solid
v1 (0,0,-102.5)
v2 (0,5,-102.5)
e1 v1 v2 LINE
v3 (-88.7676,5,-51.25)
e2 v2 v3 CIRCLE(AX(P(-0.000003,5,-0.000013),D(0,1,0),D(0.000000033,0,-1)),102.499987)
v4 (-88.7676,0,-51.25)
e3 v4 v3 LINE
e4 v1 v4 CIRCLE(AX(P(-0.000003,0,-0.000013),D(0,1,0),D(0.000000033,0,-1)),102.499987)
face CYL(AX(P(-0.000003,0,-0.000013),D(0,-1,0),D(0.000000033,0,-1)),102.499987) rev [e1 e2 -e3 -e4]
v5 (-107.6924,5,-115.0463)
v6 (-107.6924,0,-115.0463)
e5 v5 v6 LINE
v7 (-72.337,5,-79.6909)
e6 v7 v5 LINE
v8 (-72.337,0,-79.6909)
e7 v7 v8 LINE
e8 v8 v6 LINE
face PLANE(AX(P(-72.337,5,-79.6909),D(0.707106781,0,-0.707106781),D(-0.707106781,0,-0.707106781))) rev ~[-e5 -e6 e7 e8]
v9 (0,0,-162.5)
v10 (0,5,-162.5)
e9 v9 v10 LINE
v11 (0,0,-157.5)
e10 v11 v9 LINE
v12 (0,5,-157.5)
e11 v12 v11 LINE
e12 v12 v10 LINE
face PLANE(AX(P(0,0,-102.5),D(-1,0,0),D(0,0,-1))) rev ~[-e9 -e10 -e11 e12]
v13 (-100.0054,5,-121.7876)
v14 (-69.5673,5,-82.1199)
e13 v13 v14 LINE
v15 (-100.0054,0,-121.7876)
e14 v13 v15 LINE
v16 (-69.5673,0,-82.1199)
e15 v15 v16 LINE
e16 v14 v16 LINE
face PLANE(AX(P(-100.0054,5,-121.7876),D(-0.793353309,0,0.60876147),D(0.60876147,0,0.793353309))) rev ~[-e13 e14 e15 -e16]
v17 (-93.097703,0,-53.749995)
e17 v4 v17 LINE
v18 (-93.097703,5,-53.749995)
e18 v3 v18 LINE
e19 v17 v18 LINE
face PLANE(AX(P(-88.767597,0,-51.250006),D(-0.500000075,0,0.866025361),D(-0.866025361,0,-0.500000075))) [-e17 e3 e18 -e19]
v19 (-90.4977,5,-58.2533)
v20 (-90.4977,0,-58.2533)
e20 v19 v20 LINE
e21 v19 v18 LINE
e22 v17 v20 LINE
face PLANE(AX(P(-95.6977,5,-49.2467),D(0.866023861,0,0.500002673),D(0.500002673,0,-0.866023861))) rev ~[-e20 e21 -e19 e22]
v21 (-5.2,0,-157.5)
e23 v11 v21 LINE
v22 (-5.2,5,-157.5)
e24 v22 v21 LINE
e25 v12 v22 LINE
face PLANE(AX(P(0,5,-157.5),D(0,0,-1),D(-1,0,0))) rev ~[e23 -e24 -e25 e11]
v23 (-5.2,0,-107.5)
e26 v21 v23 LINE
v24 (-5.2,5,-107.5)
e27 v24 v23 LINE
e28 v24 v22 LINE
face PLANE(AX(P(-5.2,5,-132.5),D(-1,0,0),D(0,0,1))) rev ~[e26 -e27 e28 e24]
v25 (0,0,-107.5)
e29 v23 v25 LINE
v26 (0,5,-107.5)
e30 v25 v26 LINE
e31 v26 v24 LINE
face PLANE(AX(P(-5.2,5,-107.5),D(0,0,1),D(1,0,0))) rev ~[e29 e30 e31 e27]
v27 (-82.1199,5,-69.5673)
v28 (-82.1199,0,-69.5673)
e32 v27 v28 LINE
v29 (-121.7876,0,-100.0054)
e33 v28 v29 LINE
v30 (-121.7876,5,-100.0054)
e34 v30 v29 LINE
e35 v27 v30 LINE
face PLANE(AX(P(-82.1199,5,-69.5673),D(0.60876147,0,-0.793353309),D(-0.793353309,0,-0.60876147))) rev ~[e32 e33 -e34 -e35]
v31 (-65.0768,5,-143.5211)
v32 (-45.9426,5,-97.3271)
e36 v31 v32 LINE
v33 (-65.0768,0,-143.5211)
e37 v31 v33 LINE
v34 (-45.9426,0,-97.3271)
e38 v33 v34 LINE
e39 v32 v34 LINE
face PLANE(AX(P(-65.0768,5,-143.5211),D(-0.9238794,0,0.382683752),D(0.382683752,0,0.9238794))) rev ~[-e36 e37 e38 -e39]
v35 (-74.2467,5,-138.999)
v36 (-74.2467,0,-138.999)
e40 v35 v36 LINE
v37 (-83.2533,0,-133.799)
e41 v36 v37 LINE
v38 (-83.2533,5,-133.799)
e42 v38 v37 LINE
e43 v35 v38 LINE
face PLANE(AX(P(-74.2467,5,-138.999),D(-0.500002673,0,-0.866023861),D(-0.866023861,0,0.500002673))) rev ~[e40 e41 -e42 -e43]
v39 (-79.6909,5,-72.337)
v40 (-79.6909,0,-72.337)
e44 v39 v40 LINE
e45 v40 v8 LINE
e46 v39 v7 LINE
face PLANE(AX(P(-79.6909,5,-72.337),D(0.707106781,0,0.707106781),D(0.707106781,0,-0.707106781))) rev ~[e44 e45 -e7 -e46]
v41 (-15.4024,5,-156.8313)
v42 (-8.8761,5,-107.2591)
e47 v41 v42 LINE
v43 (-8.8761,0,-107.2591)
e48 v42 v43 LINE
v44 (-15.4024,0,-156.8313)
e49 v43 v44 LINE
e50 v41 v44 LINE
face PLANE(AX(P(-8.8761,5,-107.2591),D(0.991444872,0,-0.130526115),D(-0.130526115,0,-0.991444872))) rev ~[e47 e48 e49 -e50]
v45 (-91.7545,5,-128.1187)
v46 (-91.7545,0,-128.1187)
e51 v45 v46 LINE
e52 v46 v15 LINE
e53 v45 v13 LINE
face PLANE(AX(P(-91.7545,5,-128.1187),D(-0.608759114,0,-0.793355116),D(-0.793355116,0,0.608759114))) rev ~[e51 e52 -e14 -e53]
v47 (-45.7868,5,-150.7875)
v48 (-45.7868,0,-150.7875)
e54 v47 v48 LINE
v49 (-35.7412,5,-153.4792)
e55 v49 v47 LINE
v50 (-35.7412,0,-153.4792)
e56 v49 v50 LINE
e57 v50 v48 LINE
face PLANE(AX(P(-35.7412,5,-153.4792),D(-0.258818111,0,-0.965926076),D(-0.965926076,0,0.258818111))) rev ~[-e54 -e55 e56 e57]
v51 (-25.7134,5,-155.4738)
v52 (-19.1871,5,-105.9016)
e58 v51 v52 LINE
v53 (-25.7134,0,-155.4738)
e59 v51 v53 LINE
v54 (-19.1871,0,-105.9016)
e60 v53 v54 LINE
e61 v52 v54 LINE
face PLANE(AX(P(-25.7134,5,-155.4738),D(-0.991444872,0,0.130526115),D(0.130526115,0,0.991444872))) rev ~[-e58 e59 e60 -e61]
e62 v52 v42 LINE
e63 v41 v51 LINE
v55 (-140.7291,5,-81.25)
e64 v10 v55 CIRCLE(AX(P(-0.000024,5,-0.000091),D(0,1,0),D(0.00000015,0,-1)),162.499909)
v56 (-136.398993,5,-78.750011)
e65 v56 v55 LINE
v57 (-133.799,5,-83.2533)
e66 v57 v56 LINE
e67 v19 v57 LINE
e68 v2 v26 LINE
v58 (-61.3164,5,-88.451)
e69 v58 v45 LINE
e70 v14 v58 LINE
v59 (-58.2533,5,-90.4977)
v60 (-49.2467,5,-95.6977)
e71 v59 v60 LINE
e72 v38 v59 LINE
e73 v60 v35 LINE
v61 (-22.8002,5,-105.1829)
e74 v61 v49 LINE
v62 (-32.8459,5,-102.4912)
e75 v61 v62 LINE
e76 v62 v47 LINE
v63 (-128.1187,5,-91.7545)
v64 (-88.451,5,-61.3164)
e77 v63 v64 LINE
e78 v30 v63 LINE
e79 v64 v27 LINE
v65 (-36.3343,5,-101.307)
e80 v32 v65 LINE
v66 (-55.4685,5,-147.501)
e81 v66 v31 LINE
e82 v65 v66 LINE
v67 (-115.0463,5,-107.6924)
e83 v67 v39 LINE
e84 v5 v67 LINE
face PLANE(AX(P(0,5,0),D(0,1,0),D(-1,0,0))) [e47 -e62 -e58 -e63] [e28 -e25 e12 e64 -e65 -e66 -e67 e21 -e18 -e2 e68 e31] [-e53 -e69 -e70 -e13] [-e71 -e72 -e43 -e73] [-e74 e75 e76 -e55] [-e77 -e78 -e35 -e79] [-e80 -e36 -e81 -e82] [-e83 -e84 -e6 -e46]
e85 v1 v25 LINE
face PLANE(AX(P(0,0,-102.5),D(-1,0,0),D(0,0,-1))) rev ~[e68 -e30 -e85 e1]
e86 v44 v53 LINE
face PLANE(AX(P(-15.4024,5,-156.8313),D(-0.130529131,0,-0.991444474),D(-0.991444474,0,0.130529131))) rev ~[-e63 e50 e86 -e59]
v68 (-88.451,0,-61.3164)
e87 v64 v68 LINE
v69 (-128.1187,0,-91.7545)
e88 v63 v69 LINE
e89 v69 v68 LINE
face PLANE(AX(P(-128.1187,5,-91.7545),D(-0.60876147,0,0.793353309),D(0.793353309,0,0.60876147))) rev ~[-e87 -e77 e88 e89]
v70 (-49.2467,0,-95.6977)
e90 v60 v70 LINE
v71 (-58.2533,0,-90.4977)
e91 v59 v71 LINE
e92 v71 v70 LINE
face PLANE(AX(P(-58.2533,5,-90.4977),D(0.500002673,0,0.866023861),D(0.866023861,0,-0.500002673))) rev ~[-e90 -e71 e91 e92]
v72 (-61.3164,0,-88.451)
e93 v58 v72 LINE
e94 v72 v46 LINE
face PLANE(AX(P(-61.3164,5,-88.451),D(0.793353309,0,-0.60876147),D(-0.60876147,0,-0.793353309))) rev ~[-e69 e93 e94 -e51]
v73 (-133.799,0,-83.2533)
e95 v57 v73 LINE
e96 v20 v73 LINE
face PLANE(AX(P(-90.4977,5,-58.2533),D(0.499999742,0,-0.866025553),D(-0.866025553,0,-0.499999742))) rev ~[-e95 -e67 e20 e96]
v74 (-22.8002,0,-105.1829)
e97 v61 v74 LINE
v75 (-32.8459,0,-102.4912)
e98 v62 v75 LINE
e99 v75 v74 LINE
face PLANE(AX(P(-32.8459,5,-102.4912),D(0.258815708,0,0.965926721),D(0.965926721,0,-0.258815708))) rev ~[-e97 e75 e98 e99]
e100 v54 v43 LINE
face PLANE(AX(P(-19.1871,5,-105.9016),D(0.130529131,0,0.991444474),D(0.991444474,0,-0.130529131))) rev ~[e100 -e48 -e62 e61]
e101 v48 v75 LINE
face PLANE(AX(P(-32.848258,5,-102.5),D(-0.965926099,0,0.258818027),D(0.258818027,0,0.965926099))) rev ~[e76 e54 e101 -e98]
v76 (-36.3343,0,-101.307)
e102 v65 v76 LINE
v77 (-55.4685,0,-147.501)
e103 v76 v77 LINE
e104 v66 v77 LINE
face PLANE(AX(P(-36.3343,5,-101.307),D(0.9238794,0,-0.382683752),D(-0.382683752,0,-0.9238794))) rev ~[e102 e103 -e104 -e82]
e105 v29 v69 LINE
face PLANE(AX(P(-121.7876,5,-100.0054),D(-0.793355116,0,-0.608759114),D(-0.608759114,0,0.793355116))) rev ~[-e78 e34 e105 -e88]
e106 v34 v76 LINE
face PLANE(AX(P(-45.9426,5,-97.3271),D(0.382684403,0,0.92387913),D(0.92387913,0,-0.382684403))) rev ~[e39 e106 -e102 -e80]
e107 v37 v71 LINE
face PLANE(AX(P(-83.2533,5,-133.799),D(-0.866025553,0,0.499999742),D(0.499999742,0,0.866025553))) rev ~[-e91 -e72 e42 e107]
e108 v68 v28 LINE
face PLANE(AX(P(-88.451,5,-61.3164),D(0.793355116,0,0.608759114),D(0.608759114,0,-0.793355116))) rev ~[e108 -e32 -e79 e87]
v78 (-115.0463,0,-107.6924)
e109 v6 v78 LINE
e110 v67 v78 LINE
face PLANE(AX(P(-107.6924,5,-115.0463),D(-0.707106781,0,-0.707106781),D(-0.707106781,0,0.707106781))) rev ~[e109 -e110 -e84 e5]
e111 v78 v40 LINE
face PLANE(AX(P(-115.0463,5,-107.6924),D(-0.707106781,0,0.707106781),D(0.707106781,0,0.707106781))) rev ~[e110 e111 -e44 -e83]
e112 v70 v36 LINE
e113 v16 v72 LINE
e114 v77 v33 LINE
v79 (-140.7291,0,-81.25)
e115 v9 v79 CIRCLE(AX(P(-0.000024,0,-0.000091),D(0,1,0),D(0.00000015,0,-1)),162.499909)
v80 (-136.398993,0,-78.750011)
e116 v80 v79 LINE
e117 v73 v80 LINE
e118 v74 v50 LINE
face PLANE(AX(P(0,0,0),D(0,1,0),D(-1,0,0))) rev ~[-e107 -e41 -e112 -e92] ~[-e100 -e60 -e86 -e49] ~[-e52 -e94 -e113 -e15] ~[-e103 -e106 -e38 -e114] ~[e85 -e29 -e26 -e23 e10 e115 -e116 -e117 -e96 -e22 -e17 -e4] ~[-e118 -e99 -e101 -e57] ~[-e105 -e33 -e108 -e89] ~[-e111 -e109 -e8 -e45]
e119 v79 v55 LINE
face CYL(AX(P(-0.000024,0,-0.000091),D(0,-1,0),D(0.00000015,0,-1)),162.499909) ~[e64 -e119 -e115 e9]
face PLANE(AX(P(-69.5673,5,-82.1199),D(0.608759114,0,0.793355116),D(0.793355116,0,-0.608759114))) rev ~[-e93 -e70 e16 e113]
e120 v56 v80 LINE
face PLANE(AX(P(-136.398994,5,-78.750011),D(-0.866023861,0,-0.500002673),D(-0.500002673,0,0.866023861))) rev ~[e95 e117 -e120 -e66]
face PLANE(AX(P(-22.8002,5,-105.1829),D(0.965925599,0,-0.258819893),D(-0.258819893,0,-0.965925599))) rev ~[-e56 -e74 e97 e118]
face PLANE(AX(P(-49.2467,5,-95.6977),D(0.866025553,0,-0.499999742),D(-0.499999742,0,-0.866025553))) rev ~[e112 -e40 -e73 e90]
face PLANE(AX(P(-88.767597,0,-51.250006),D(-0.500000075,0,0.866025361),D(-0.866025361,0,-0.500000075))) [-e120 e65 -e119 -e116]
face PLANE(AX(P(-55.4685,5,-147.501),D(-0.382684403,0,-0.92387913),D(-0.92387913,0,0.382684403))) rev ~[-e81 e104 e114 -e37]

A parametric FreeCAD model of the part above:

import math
import FreeCAD as App
import Part
import Sketcher
Q = App.Units.Quantity


def add_polygon(sketch, points):
    """Adds a closed chain of lines whose ends are joined by coincident constraints."""
    first, n = sketch.GeometryCount, len(points)
    for a, b in zip(points, points[1:] + points[:1]):
        sketch.addGeometry(Part.LineSegment(App.Vector(*a, 0), App.Vector(*b, 0)), False)
    for i in range(n):
        sketch.addConstraint(Sketcher.Constraint("Coincident", first + i, 2, first + (i + 1) % n, 1))

doc = App.newDocument("Part")
body = doc.addObject("PartDesign::Body", "Body")

sketch1 = body.newObject("Sketcher::SketchObject", "Sketch")
sketch1.AttachmentSupport = (doc.getObject("XZ_Plane"), [""])
sketch1.MapMode = "FlatFace"
sketch1.addGeometry([
    Part.ArcOfCircle(Part.Circle(App.Vector(0, 0, 0), App.Vector(0, 0, 1), 102), math.radians(-150), math.radians(-90)),
    Part.LineSegment(App.Vector(0, -102, 0), App.Vector(0, -162, 0)),
    Part.ArcOfCircle(Part.Circle(App.Vector(0, 0, 0), App.Vector(0, 0, 1), 162), math.radians(-150), math.radians(-90)),
    Part.LineSegment(App.Vector(-141, -81, 0), App.Vector(-89, -51, 0)),
], False)
sketch1.addConstraint([
    Sketcher.Constraint("Coincident", 0, 2, 1, 1),
    Sketcher.Constraint("Coincident", 1, 2, 2, 2),
    Sketcher.Constraint("Coincident", 2, 1, 3, 1),
    Sketcher.Constraint("Coincident", 3, 2, 0, 1),
    Sketcher.Constraint("Vertical", 1),
    Sketcher.Constraint("Coincident", 0, 3, -1, 1),
    Sketcher.Constraint("Coincident", 2, 3, -1, 1),
    Sketcher.Constraint("PointOnObject", 0, 2, -2),
    Sketcher.Constraint("Radius", 0, Q("102.5 mm")),
    Sketcher.Constraint("DistanceY", 1, 2, 1, 1, Q("60 mm")),
    Sketcher.Constraint("Angle", 3, Q("30 deg")),
    Sketcher.Constraint("DistanceY", 2, 1, -1, 1, Q("81.25 mm")),
])
pad1 = body.newObject("PartDesign::Pad", "Pad")
pad1.Profile = sketch1
pad1.Length = 5
pad1.Reversed = True

sketch2 = body.newObject("Sketcher::SketchObject", "Sketch001")
sketch2.AttachmentSupport = (doc.getObject("XZ_Plane"), [""])
sketch2.MapMode = "FlatFace"
sketch2.AttachmentOffset = App.Placement(App.Vector(0, 0, -5), App.Rotation())
add_polygon(sketch2, [(-9, -107), (-15, -157), (-26, -155), (-19, -106)])
add_polygon(sketch2, [(-33, -102), (-23, -105), (-36, -153), (-46, -151)])
add_polygon(sketch2, [(-5, -108), (5, -108), (5, -158), (-5, -158)])
add_polygon(sketch2, [(-96, -49), (-90, -58), (-134, -83), (-139, -74)])
add_polygon(sketch2, [(-36, -101), (-55, -148), (-65, -144), (-46, -97)])
add_polygon(sketch2, [(-49, -96), (-74, -139), (-83, -134), (-58, -90)])
add_polygon(sketch2, [(-61, -88), (-92, -128), (-100, -122), (-70, -82)])
add_polygon(sketch2, [(-72, -80), (-108, -115), (-115, -108), (-80, -72)])
add_polygon(sketch2, [(-82, -70), (-122, -100), (-128, -92), (-88, -61)])
sketch2.addConstraint([
    Sketcher.Constraint("Horizontal", 8),
    Sketcher.Constraint("Vertical", 9),
    Sketcher.Constraint("Horizontal", 10),
    Sketcher.Constraint("Vertical", 11),
    Sketcher.Constraint("Perpendicular", 0, 1),
    Sketcher.Constraint("Perpendicular", 1, 2),
    Sketcher.Constraint("Perpendicular", 2, 3),
    Sketcher.Constraint("Perpendicular", 4, 5),
    Sketcher.Constraint("Perpendicular", 5, 6),
    Sketcher.Constraint("Perpendicular", 6, 7),
    Sketcher.Constraint("Perpendicular", 12, 13),
    Sketcher.Constraint("Perpendicular", 13, 14),
    Sketcher.Constraint("Perpendicular", 14, 15),
    Sketcher.Constraint("Perpendicular", 16, 17),
    Sketcher.Constraint("Perpendicular", 17, 18),
    Sketcher.Constraint("Perpendicular", 18, 19),
    Sketcher.Constraint("Perpendicular", 20, 21),
    Sketcher.Constraint("Perpendicular", 21, 22),
    Sketcher.Constraint("Perpendicular", 22, 23),
    Sketcher.Constraint("Perpendicular", 24, 25),
    Sketcher.Constraint("Perpendicular", 25, 26),
    Sketcher.Constraint("Perpendicular", 26, 27),
    Sketcher.Constraint("Perpendicular", 28, 29),
    Sketcher.Constraint("Perpendicular", 29, 30),
    Sketcher.Constraint("Perpendicular", 30, 31),
    Sketcher.Constraint("Perpendicular", 32, 33),
    Sketcher.Constraint("Perpendicular", 33, 34),
    Sketcher.Constraint("Perpendicular", 34, 35),
    Sketcher.Constraint("Equal", 3, 4),
    Sketcher.Constraint("Equal", 2, 5),
    Sketcher.Constraint("Equal", 6, 12),
    Sketcher.Constraint("Equal", 7, 13),
    Sketcher.Constraint("Equal", 15, 16),
    Sketcher.Constraint("Equal", 14, 17),
    Sketcher.Constraint("Equal", 18, 20),
    Sketcher.Constraint("Equal", 19, 21),
    Sketcher.Constraint("Equal", 22, 24),
    Sketcher.Constraint("Equal", 23, 25),
    Sketcher.Constraint("Equal", 26, 28),
    Sketcher.Constraint("Equal", 27, 29),
    Sketcher.Constraint("Equal", 30, 32),
    Sketcher.Constraint("Equal", 31, 33),
    Sketcher.Constraint("DistanceY", 9, 2, 9, 1, Q("50 mm")),
    Sketcher.Constraint("Angle", 12, Q("-59.9998 deg")),
    Sketcher.Constraint("Angle", 22, Q("60 deg")),
    Sketcher.Constraint("Distance", 0, Q("50 mm")),
    Sketcher.Constraint("DistanceX", 8, 1, 8, 2, Q("10.4 mm")),
    Sketcher.Constraint("Distance", 1, Q("10.4 mm")),
    Sketcher.Constraint("Angle", 4, Q("-14.9998 deg")),
    Sketcher.Constraint("Angle", 28, Q("-135 deg")),
    Sketcher.Constraint("Angle", 0, Q("-97.5 deg")),
    Sketcher.Constraint("Angle", 16, Q("-112.5 deg")),
    Sketcher.Constraint("Angle", 24, Q("-127.5 deg")),
    Sketcher.Constraint("Angle", 32, Q("-142.5 deg")),
    Sketcher.Constraint("DistanceX", -1, 1, 8, 2, Q("5.2 mm")),
    Sketcher.Constraint("DistanceY", 8, 2, -1, 1, Q("107.5 mm")),
    Sketcher.Constraint("DistanceY", 26, 2, -1, 1, Q("82.12 mm")),
    Sketcher.Constraint("DistanceX", 35, 2, -1, 1, Q("82.12 mm")),
    Sketcher.Constraint("DistanceY", 5, 2, 3, 2, Q("46.22 mm")),
    Sketcher.Constraint("DistanceX", 17, 2, 6, 2, Q("19.29 mm")),
    Sketcher.Constraint("DistanceX", 20, 2, 17, 2, Q("9.17 mm")),
    Sketcher.Constraint("DistanceY", 27, 2, 31, 2, Q("8.76 mm")),
    Sketcher.Constraint("DistanceX", 34, 2, 30, 2, Q("8.76 mm")),
    Sketcher.Constraint("DistanceX", 2, 2, -1, 1, Q("19.187 mm")),
    Sketcher.Constraint("DistanceY", 3, 2, -1, 1, Q("107.259 mm")),
    Sketcher.Constraint("DistanceX", 7, 2, -1, 1, Q("32.846 mm")),
    Sketcher.Constraint("DistanceX", 13, 2, -1, 1, Q("133.799 mm")),
    Sketcher.Constraint("DistanceY", 16, 2, -1, 1, Q("147.501 mm")),
    Sketcher.Constraint("DistanceY", 20, 2, -1, 1, Q("138.999 mm")),
    Sketcher.Constraint("DistanceY", 7, 2, 12, 2, Q("44.238 mm")),
    Sketcher.Constraint("DistanceX", 24, 2, 16, 2, Q("36.286 mm")),
    Sketcher.Constraint("DistanceY", 29, 2, 32, 2, Q("7.687 mm")),
])
pocket1 = body.newObject("PartDesign::Pocket", "Pocket")
pocket1.Profile = sketch2
pocket1.Type = "ThroughAll"
pocket1.Reversed = True

doc.recompute()
